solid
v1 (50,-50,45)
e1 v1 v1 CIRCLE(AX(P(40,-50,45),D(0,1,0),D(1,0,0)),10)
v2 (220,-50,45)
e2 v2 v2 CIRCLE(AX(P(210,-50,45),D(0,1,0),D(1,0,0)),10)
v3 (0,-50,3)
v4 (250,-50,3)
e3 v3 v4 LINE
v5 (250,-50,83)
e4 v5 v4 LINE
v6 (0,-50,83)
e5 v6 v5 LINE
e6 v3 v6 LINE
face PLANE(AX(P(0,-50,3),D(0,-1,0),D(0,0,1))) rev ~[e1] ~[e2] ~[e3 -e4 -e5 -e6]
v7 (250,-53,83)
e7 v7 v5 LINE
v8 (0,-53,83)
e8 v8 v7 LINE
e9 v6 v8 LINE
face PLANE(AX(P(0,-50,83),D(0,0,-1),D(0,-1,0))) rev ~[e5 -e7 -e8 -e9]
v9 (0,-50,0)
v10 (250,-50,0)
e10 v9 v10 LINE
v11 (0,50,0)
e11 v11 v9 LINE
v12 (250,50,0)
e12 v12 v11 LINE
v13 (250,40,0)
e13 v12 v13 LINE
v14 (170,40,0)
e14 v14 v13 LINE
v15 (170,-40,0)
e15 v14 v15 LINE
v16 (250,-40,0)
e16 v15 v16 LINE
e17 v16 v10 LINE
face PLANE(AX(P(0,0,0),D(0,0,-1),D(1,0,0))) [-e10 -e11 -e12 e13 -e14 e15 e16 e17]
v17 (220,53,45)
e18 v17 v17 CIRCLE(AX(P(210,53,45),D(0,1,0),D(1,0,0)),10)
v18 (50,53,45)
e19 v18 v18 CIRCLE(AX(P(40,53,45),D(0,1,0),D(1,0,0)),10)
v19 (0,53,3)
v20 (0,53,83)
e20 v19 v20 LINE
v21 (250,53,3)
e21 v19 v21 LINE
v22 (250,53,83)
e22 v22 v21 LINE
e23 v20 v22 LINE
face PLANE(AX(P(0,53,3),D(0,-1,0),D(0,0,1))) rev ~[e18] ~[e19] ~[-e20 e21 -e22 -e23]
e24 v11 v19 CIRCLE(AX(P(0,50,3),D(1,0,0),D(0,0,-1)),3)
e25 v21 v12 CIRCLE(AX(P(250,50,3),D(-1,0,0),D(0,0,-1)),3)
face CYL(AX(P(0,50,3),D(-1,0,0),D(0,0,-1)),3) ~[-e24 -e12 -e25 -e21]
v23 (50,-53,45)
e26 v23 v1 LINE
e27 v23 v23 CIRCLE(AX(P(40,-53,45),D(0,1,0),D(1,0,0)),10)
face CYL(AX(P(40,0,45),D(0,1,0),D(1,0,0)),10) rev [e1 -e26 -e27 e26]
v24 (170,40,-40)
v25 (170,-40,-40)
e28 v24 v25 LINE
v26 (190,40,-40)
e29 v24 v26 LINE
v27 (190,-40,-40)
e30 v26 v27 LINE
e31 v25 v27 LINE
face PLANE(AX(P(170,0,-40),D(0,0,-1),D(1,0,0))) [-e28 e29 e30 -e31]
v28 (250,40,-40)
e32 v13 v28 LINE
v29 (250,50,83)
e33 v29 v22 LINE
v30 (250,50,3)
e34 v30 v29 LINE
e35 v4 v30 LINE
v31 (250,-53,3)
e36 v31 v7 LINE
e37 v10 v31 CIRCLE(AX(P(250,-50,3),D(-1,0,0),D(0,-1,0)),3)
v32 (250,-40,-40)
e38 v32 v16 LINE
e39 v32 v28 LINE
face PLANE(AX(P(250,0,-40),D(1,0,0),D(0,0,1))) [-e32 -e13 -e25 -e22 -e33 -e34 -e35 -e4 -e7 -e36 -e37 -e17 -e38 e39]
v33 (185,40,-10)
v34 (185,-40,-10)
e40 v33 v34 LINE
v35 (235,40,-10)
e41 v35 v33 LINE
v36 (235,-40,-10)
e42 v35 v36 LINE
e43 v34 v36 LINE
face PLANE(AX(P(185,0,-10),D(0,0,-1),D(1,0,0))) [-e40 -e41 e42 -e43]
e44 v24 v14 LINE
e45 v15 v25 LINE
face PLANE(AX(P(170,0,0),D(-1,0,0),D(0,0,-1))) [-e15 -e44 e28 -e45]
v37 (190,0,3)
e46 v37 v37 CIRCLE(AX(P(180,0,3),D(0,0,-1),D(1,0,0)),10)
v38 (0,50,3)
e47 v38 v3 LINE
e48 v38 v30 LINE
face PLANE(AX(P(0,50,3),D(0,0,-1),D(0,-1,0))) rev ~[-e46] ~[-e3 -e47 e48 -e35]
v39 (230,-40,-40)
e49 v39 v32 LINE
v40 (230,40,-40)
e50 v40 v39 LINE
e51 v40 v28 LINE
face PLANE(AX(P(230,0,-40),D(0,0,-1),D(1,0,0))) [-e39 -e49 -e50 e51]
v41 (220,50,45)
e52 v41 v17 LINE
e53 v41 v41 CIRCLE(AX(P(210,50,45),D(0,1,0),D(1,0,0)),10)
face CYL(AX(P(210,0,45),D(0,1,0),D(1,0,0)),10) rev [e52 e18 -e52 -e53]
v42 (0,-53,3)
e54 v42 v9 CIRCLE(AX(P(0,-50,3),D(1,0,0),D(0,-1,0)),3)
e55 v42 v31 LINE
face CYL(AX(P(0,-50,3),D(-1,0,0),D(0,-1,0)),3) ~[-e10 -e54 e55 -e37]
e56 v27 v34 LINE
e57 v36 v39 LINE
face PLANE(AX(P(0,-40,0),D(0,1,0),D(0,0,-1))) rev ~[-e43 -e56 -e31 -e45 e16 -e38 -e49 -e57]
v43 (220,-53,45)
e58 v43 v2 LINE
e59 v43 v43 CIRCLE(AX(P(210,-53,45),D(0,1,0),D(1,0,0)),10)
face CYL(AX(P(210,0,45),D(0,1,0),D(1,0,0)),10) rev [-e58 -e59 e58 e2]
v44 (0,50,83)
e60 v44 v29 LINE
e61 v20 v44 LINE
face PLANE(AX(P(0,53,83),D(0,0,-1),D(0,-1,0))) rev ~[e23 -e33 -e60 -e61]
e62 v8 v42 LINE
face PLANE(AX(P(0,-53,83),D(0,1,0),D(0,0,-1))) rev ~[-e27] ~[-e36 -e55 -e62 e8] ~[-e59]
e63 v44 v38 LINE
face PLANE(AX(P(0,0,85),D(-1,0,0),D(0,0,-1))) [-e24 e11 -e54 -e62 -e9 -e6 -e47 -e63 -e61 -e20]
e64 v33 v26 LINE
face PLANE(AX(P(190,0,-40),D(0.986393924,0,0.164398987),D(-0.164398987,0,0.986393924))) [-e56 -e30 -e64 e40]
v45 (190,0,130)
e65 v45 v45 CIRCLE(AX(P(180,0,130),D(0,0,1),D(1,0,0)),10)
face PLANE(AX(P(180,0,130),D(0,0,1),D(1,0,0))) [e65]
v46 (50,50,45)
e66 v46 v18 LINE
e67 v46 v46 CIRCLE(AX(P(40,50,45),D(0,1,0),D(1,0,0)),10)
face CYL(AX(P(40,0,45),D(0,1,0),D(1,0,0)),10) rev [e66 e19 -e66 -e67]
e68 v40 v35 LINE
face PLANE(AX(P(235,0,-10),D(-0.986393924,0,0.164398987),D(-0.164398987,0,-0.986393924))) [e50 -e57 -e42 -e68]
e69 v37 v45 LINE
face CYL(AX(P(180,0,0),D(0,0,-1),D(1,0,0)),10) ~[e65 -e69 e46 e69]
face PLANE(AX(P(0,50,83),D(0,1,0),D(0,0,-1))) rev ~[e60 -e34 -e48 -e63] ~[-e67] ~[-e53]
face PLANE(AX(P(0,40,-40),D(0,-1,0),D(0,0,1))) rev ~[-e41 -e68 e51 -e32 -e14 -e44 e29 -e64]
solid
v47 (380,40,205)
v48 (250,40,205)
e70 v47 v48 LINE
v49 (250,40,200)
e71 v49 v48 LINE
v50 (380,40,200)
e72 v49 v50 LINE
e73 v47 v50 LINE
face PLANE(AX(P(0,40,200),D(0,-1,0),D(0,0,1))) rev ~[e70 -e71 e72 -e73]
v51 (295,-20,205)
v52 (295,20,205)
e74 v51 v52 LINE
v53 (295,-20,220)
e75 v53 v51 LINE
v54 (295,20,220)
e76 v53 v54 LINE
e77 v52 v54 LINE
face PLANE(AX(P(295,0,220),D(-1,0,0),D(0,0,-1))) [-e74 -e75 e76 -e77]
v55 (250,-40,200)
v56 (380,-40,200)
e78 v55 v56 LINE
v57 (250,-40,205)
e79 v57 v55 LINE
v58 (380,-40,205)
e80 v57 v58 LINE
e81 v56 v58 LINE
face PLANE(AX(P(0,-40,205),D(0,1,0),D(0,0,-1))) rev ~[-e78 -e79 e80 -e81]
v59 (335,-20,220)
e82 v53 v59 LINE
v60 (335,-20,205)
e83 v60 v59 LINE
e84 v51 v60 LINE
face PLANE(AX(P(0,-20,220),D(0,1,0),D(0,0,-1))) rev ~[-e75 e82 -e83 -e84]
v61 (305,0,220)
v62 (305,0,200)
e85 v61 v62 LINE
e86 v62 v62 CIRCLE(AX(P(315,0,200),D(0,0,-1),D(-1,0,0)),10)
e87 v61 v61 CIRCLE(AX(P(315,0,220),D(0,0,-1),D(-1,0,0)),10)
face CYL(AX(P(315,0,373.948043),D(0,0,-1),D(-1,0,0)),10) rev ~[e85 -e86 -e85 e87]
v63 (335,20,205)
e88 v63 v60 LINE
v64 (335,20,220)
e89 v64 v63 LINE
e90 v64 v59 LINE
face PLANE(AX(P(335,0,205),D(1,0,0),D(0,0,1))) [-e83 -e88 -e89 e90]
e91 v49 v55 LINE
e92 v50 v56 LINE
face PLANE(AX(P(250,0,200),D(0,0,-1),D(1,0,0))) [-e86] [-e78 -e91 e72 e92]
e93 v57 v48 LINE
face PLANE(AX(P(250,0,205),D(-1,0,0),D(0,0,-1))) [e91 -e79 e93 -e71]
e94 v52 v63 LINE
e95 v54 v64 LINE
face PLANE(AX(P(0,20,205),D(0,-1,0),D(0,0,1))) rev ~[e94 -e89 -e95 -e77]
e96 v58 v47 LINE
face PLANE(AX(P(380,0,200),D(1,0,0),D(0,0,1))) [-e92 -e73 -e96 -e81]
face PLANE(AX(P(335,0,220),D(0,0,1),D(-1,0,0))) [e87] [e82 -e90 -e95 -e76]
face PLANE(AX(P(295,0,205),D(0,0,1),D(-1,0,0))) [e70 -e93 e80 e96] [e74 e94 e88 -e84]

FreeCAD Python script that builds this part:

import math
import FreeCAD as App
import Part
import Sketcher
from FreeCAD import Vector
Q = App.Units.Quantity

doc = App.newDocument("Part")
body = doc.addObject("PartDesign::Body", "Body")

sketch1 = body.newObject("Sketcher::SketchObject", "Sketch")
sketch1.AttachmentSupport = (doc.getObject("XZ_Plane"), [""])
sketch1.MapMode = "FlatFace"
sketch1.addGeometry([
    Part.LineSegment(Vector(0, 85, 0), Vector(0, 0, 0)),
    Part.LineSegment(Vector(0, 0, 0), Vector(170, 0, 0)),
    Part.LineSegment(Vector(170, 0, 0), Vector(170, -40, 0)),
    Part.LineSegment(Vector(170, -40, 0), Vector(190, -40, 0)),
    Part.LineSegment(Vector(190, -40, 0), Vector(185, -10, 0)),
    Part.LineSegment(Vector(185, -10, 0), Vector(235, -10, 0)),
    Part.LineSegment(Vector(235, -10, 0), Vector(230, -40, 0)),
    Part.LineSegment(Vector(230, -40, 0), Vector(250, -40, 0)),
    Part.LineSegment(Vector(250, -40, 0), Vector(250, 85, 0)),
    Part.LineSegment(Vector(250, 85, 0), Vector(0, 85, 0)),
    Part.Circle(Vector(40, 45, 0), Vector(0, 0, 1), 10),
    Part.Circle(Vector(210, 45, 0), Vector(0, 0, 1), 10),
], False)
sketch1.addConstraint([
    Sketcher.Constraint("Coincident", 0, 2, 1, 1),
    Sketcher.Constraint("Coincident", 1, 2, 2, 1),
    Sketcher.Constraint("Coincident", 2, 2, 3, 1),
    Sketcher.Constraint("Coincident", 3, 2, 4, 1),
    Sketcher.Constraint("Coincident", 4, 2, 5, 1),
    Sketcher.Constraint("Coincident", 5, 2, 6, 1),
    Sketcher.Constraint("Coincident", 6, 2, 7, 1),
    Sketcher.Constraint("Coincident", 7, 2, 8, 1),
    Sketcher.Constraint("Coincident", 8, 2, 9, 1),
    Sketcher.Constraint("Coincident", 9, 2, 0, 1),
    Sketcher.Constraint("Vertical", 0),
    Sketcher.Constraint("Horizontal", 1),
    Sketcher.Constraint("Vertical", 2),
    Sketcher.Constraint("Horizontal", 3),
    Sketcher.Constraint("Horizontal", 5),
    Sketcher.Constraint("Horizontal", 7),
    Sketcher.Constraint("Vertical", 8),
    Sketcher.Constraint("Horizontal", 9),
    Sketcher.Constraint("Coincident", 0, 2, -1, 1),
    Sketcher.Constraint("Equal", 10, 11),
    Sketcher.Constraint("Horizontal", 10, 3, 11, 3),
    Sketcher.Constraint("Horizontal", 3, 2, 6, 2),
    Sketcher.Constraint("Equal", 3, 7),
    Sketcher.Constraint("Equal", 4, 6),
    Sketcher.Constraint("Diameter", 10, Q("20 mm")),
    Sketcher.Constraint("DistanceX", 1, 1, 1, 2, Q("170 mm")),
    Sketcher.Constraint("DistanceX", 3, 1, 3, 2, Q("20 mm")),
    Sketcher.Constraint("DistanceX", 5, 1, 5, 2, Q("50 mm")),
    Sketcher.Constraint("DistanceX", 9, 2, 9, 1, Q("250 mm")),
    Sketcher.Constraint("DistanceY", 0, 2, 0, 1, Q("85 mm")),
    Sketcher.Constraint("DistanceY", 2, 2, 2, 1, Q("40 mm")),
    Sketcher.Constraint("DistanceX", -1, 1, 10, 3, Q("40 mm")),
    Sketcher.Constraint("DistanceY", -1, 1, 10, 3, Q("45 mm")),
    Sketcher.Constraint("DistanceX", -1, 1, 11, 3, Q("210 mm")),
    Sketcher.Constraint("DistanceY", 4, 2, -1, 1, Q("10 mm")),
])
pad1 = body.newObject("PartDesign::Pad", "Pad")
pad1.Profile = sketch1
pad1.Length = 206
pad1.Midplane = True
body2 = doc.addObject("PartDesign::Body", "Body001")

sketch2 = body2.newObject("Sketcher::SketchObject", "Sketch001")
sketch2.AttachmentSupport = (doc.getObject("XZ_Plane001"), [""])
sketch2.MapMode = "FlatFace"
sketch2.addGeometry([
    Part.LineSegment(Vector(250, 205, 0), Vector(250, 200, 0)),
    Part.LineSegment(Vector(250, 200, 0), Vector(380, 200, 0)),
    Part.LineSegment(Vector(380, 200, 0), Vector(380, 205, 0)),
    Part.LineSegment(Vector(380, 205, 0), Vector(335, 205, 0)),
    Part.LineSegment(Vector(335, 205, 0), Vector(335, 220, 0)),
    Part.LineSegment(Vector(335, 220, 0), Vector(295, 220, 0)),
    Part.LineSegment(Vector(295, 220, 0), Vector(295, 205, 0)),
    Part.LineSegment(Vector(295, 205, 0), Vector(250, 205, 0)),
], False)
sketch2.addConstraint([
    Sketcher.Constraint("Coincident", 0, 2, 1, 1),
    Sketcher.Constraint("Coincident", 1, 2, 2, 1),
    Sketcher.Constraint("Coincident", 2, 2, 3, 1),
    Sketcher.Constraint("Coincident", 3, 2, 4, 1),
    Sketcher.Constraint("Coincident", 4, 2, 5, 1),
    Sketcher.Constraint("Coincident", 5, 2, 6, 1),
    Sketcher.Constraint("Coincident", 6, 2, 7, 1),
    Sketcher.Constraint("Coincident", 7, 2, 0, 1),
    Sketcher.Constraint("Vertical", 0),
    Sketcher.Constraint("Horizontal", 1),
    Sketcher.Constraint("Vertical", 2),
    Sketcher.Constraint("Horizontal", 3),
    Sketcher.Constraint("Vertical", 4),
    Sketcher.Constraint("Horizontal", 5),
    Sketcher.Constraint("Vertical", 6),
    Sketcher.Constraint("Horizontal", 7),
    Sketcher.Constraint("Horizontal", 3, 2, 6, 2),
    Sketcher.Constraint("Equal", 3, 7),
    Sketcher.Constraint("DistanceX", 1, 1, 1, 2, Q("130 mm")),
    Sketcher.Constraint("DistanceX", 3, 2, 3, 1, Q("45 mm")),
    Sketcher.Constraint("DistanceY", 0, 2, 0, 1, Q("5 mm")),
    Sketcher.Constraint("DistanceY", 4, 1, 4, 2, Q("15 mm")),
    Sketcher.Constraint("DistanceX", -1, 1, 0, 2, Q("250 mm")),
    Sketcher.Constraint("DistanceY", -1, 1, 0, 2, Q("200 mm")),
])
pad2 = body2.newObject("PartDesign::Pad", "Pad001")
pad2.Profile = sketch2
pad2.Length = 206
pad2.Midplane = True
body3 = doc.addObject("PartDesign::Body", "Body002")
body3.AllowCompound = True

sketch3 = body3.newObject("Sketcher::SketchObject", "Sketch002")
sketch3.AttachmentSupport = (doc.getObject("YZ_Plane002"), [""])
sketch3.MapMode = "FlatFace"
sketch3.addGeometry([
    Part.ArcOfCircle(Part.Circle(Vector(50, 3, 0), Vector(0, 0, 1), 3), math.radians(-90), math.radians(0)),
    Part.LineSegment(Vector(53, 3, 0), Vector(53, 83, 0)),
    Part.LineSegment(Vector(53, 83, 0), Vector(50, 83, 0)),
    Part.LineSegment(Vector(50, 83, 0), Vector(50, 3, 0)),
    Part.LineSegment(Vector(50, 3, 0), Vector(-50, 3, 0)),
    Part.LineSegment(Vector(-50, 3, 0), Vector(-50, 83, 0)),
    Part.LineSegment(Vector(-50, 83, 0), Vector(-53, 83, 0)),
    Part.LineSegment(Vector(-53, 83, 0), Vector(-53, 3, 0)),
    Part.ArcOfCircle(Part.Circle(Vector(-50, 3, 0), Vector(0, 0, 1), 3), math.radians(180), math.radians(270)),
    Part.LineSegment(Vector(-50, 0, 0), Vector(-40, 0, 0)),
    Part.LineSegment(Vector(-40, 0, 0), Vector(-40, -40, 0)),
    Part.LineSegment(Vector(-40, -40, 0), Vector(40, -40, 0)),
    Part.LineSegment(Vector(40, -40, 0), Vector(40, 0, 0)),
    Part.LineSegment(Vector(40, 0, 0), Vector(50, 0, 0)),
    Part.LineSegment(Vector(-40, 200, 0), Vector(40, 200, 0)),
    Part.LineSegment(Vector(40, 200, 0), Vector(40, 205, 0)),
    Part.LineSegment(Vector(40, 205, 0), Vector(20, 205, 0)),
    Part.LineSegment(Vector(20, 205, 0), Vector(20, 220, 0)),
    Part.LineSegment(Vector(20, 220, 0), Vector(-20, 220, 0)),
    Part.LineSegment(Vector(-20, 220, 0), Vector(-20, 205, 0)),
    Part.LineSegment(Vector(-20, 205, 0), Vector(-40, 205, 0)),
    Part.LineSegment(Vector(-40, 205, 0), Vector(-40, 200, 0)),
], False)
sketch3.addConstraint([
    Sketcher.Constraint("Tangent", 0, 2, 1, 1),
    Sketcher.Constraint("Coincident", 1, 2, 2, 1),
    Sketcher.Constraint("Coincident", 2, 2, 3, 1),
    Sketcher.Constraint("Coincident", 3, 2, 4, 1),
    Sketcher.Constraint("Coincident", 4, 2, 5, 1),
    Sketcher.Constraint("Coincident", 5, 2, 6, 1),
    Sketcher.Constraint("Coincident", 6, 2, 7, 1),
    Sketcher.Constraint("Tangent", 7, 2, 8, 1),
    Sketcher.Constraint("Tangent", 8, 2, 9, 1),
    Sketcher.Constraint("Coincident", 9, 2, 10, 1),
    Sketcher.Constraint("Coincident", 10, 2, 11, 1),
    Sketcher.Constraint("Coincident", 11, 2, 12, 1),
    Sketcher.Constraint("Coincident", 12, 2, 13, 1),
    Sketcher.Constraint("Tangent", 13, 2, 0, 1),
    Sketcher.Constraint("Coincident", 14, 2, 15, 1),
    Sketcher.Constraint("Coincident", 15, 2, 16, 1),
    Sketcher.Constraint("Coincident", 16, 2, 17, 1),
    Sketcher.Constraint("Coincident", 17, 2, 18, 1),
    Sketcher.Constraint("Coincident", 18, 2, 19, 1),
    Sketcher.Constraint("Coincident", 19, 2, 20, 1),
    Sketcher.Constraint("Coincident", 20, 2, 21, 1),
    Sketcher.Constraint("Coincident", 21, 2, 14, 1),
    Sketcher.Constraint("Vertical", 1),
    Sketcher.Constraint("Horizontal", 2),
    Sketcher.Constraint("Vertical", 3),
    Sketcher.Constraint("Horizontal", 4),
    Sketcher.Constraint("Vertical", 5),
    Sketcher.Constraint("Horizontal", 6),
    Sketcher.Constraint("Vertical", 7),
    Sketcher.Constraint("Horizontal", 9),
    Sketcher.Constraint("Vertical", 10),
    Sketcher.Constraint("Horizontal", 11),
    Sketcher.Constraint("Vertical", 12),
    Sketcher.Constraint("Horizontal", 13),
    Sketcher.Constraint("Horizontal", 14),
    Sketcher.Constraint("Vertical", 15),
    Sketcher.Constraint("Horizontal", 16),
    Sketcher.Constraint("Vertical", 17),
    Sketcher.Constraint("Horizontal", 18),
    Sketcher.Constraint("Vertical", 19),
    Sketcher.Constraint("Horizontal", 20),
    Sketcher.Constraint("Vertical", 21),
    Sketcher.Constraint("Coincident", 3, 2, 0, 3),
    Sketcher.Constraint("Coincident", 4, 2, 8, 3),
    Sketcher.Constraint("Equal", 0, 8),
    Sketcher.Constraint("Symmetric", 9, 2, 12, 2, -1, 1),
    Sketcher.Constraint("Symmetric", 2, 2, 5, 2, -2),
    Sketcher.Constraint("Symmetric", 16, 2, 19, 2, -2),
    Sketcher.Constraint("Vertical", 12, 2, 14, 2),
    Sketcher.Constraint("Vertical", 10, 2, 20, 2),
    Sketcher.Constraint("Equal", 14, 1),
    Sketcher.Constraint("Equal", 18, 10),
    Sketcher.Constraint("Radius", 0, Q("3 mm")),
    Sketcher.Constraint("DistanceX", 4, 2, 4, 1, Q("100 mm")),
    Sketcher.Constraint("DistanceX", 9, 1, 9, 2, Q("10 mm")),
    Sketcher.Constraint("DistanceX", 16, 2, 16, 1, Q("20 mm")),
    Sketcher.Constraint("DistanceY", 15, 1, 15, 2, Q("5 mm")),
    Sketcher.Constraint("DistanceY", 17, 1, 17, 2, Q("15 mm")),
    Sketcher.Constraint("DistanceY", -1, 1, 14, 2, Q("200 mm")),
])
pad3 = body3.newObject("PartDesign::Pad", "Pad002")
pad3.Profile = sketch3
pad3.Length = 437
doc.recompute()

body4 = doc.addObject("PartDesign::Body", "Body003")
body4.BaseFeature = body3
boolean = body.newObject("PartDesign::Boolean", "Boolean")
boolean.Type = "Common"
boolean.addObjects([body4])
doc.recompute()

sketch4 = body.newObject("Sketcher::SketchObject", "Sketch003")
sketch4.AttachmentSupport = (doc.getObject("XY_Plane"), [""])
sketch4.MapMode = "FlatFace"
sketch4.addGeometry(Part.Circle(Vector(180, 0, 0), Vector(0, 0, 1), 10), False)
sketch4.addConstraint([
    Sketcher.Constraint("PointOnObject", 0, 3, -1),
    Sketcher.Constraint("Diameter", 0, Q("20 mm")),
    Sketcher.Constraint("DistanceX", -1, 1, 0, 3, Q("180 mm")),
])
pad4 = body.newObject("PartDesign::Pad", "Pad003")
pad4.Profile = sketch4
pad4.Length = 130
doc.recompute()

boolean2 = body2.newObject("PartDesign::Boolean", "Boolean001")
boolean2.Type = "Common"
boolean2.addObjects([body3])

sketch5 = body2.newObject("Sketcher::SketchObject", "Sketch004")
sketch5.AttachmentSupport = (doc.getObject("XY_Plane001"), [""])
sketch5.MapMode = "FlatFace"
sketch5.AttachmentOffset = App.Placement(Vector(0, 0, 220), App.Rotation())
sketch5.addGeometry(Part.Circle(Vector(315, 0, 0), Vector(0, 0, 1), 10), False)
sketch5.addConstraint([
    Sketcher.Constraint("PointOnObject", 0, 3, -1),
    Sketcher.Constraint("Diameter", 0, Q("20 mm")),
    Sketcher.Constraint("DistanceX", -1, 1, 0, 3, Q("315 mm")),
])
doc.recompute()
hole = body2.newObject("PartDesign::Hole", "Hole")
hole.Profile = sketch5
hole.ThreadType = "None"
hole.Diameter = 20
hole.DepthType = "ThroughAll"

doc.recompute()
